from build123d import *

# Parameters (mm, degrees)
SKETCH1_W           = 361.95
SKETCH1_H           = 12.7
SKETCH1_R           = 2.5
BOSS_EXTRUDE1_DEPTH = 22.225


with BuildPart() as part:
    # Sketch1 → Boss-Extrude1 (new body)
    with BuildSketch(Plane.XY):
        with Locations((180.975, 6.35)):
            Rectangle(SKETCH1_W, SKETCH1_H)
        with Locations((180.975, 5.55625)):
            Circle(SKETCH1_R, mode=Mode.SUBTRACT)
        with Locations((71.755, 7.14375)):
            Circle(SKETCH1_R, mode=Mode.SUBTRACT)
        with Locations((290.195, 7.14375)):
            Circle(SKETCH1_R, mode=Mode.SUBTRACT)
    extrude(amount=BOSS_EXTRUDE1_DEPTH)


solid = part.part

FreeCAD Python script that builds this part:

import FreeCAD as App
import Part
import Sketcher
from FreeCAD import Vector
Q = App.Units.Quantity


def add_polygon(sketch, points):
    """Adds a closed chain of lines whose ends are joined by coincident constraints."""
    first, n = sketch.GeometryCount, len(points)
    for a, b in zip(points, points[1:] + points[:1]):
        sketch.addGeometry(Part.LineSegment(App.Vector(*a, 0), App.Vector(*b, 0)), False)
    for i in range(n):
        sketch.addConstraint(Sketcher.Constraint("Coincident", first + i, 2, first + (i + 1) % n, 1))

doc = App.newDocument("Part")
params = doc.addObject("Spreadsheet::Sheet", "Params")
for row, (alias, value) in enumerate([
    ("sketch1_height", "0.5 in"),
    ("sketch1_width", "14.25 in"),
    ("pad1_length", "0.875 in"),
], start=1):
    params.set(f"A{row}", alias)
    params.set(f"B{row}", "=" + value)
    params.setAlias(f"B{row}", alias)

body = doc.addObject("PartDesign::Body", "Body")

# Sketch on XY plane
sketch1 = body.newObject("Sketcher::SketchObject", "Sketch")
sketch1.AttachmentSupport = (doc.getObject("XY_Plane"), [""])
sketch1.MapMode = "FlatFace"
add_polygon(sketch1, [(0, 12.7), (0, 0), (361.9, 0), (361.9, 12.7)])  # lines 0-3
sketch1.addGeometry(Part.Circle(Vector(181, 5.6, 0), Vector(0, 0, 1), 2.5), False)  # 4
sketch1.addGeometry(Part.Circle(Vector(71.8, 7.1, 0), Vector(0, 0, 1), 2.5), False)  # 5
sketch1.addGeometry(Part.Circle(Vector(290.2, 7.1, 0), Vector(0, 0, 1), 2.5), False)  # 6
sketch1.addConstraint([
    Sketcher.Constraint("Vertical", 0),
    Sketcher.Constraint("Horizontal", 1),
    Sketcher.Constraint("Vertical", 2),
    Sketcher.Constraint("Horizontal", 3),
    Sketcher.Constraint("Coincident", 0, 2, -1, 1),
    Sketcher.Constraint("Equal", 4, 5),
    Sketcher.Constraint("Equal", 5, 6),
    Sketcher.Constraint("Horizontal", 5, 3, 6, 3),
    Sketcher.Constraint("DistanceY", 0, 2, 0, 1, Q("0.5 in")),
    Sketcher.Constraint("DistanceX", 1, 1, 1, 2, Q("14.25 in")),
    Sketcher.Constraint("DistanceX", 5, 3, 4, 3, Q("4.3 in")),
    Sketcher.Constraint("DistanceX", 4, 3, 6, 3, Q("4.3 in")),
    Sketcher.Constraint("Diameter", 4, 5.0),
    Sketcher.Constraint("DistanceX", -1, 1, 4, 3, Q("7.125 in")),
    Sketcher.Constraint("DistanceY", -1, 1, 4, 3, Q("0.21875 in")),
    Sketcher.Constraint("DistanceY", -1, 1, 5, 3, Q("0.28125 in")),
])
sketch1.setExpression("Constraints[12]", "Params.sketch1_height")
sketch1.setExpression("Constraints[13]", "Params.sketch1_width")
pad1 = body.newObject("PartDesign::Pad", "Pad")
pad1.Profile = sketch1
pad1.setExpression("Length", "Params.pad1_length")

doc.recompute()
